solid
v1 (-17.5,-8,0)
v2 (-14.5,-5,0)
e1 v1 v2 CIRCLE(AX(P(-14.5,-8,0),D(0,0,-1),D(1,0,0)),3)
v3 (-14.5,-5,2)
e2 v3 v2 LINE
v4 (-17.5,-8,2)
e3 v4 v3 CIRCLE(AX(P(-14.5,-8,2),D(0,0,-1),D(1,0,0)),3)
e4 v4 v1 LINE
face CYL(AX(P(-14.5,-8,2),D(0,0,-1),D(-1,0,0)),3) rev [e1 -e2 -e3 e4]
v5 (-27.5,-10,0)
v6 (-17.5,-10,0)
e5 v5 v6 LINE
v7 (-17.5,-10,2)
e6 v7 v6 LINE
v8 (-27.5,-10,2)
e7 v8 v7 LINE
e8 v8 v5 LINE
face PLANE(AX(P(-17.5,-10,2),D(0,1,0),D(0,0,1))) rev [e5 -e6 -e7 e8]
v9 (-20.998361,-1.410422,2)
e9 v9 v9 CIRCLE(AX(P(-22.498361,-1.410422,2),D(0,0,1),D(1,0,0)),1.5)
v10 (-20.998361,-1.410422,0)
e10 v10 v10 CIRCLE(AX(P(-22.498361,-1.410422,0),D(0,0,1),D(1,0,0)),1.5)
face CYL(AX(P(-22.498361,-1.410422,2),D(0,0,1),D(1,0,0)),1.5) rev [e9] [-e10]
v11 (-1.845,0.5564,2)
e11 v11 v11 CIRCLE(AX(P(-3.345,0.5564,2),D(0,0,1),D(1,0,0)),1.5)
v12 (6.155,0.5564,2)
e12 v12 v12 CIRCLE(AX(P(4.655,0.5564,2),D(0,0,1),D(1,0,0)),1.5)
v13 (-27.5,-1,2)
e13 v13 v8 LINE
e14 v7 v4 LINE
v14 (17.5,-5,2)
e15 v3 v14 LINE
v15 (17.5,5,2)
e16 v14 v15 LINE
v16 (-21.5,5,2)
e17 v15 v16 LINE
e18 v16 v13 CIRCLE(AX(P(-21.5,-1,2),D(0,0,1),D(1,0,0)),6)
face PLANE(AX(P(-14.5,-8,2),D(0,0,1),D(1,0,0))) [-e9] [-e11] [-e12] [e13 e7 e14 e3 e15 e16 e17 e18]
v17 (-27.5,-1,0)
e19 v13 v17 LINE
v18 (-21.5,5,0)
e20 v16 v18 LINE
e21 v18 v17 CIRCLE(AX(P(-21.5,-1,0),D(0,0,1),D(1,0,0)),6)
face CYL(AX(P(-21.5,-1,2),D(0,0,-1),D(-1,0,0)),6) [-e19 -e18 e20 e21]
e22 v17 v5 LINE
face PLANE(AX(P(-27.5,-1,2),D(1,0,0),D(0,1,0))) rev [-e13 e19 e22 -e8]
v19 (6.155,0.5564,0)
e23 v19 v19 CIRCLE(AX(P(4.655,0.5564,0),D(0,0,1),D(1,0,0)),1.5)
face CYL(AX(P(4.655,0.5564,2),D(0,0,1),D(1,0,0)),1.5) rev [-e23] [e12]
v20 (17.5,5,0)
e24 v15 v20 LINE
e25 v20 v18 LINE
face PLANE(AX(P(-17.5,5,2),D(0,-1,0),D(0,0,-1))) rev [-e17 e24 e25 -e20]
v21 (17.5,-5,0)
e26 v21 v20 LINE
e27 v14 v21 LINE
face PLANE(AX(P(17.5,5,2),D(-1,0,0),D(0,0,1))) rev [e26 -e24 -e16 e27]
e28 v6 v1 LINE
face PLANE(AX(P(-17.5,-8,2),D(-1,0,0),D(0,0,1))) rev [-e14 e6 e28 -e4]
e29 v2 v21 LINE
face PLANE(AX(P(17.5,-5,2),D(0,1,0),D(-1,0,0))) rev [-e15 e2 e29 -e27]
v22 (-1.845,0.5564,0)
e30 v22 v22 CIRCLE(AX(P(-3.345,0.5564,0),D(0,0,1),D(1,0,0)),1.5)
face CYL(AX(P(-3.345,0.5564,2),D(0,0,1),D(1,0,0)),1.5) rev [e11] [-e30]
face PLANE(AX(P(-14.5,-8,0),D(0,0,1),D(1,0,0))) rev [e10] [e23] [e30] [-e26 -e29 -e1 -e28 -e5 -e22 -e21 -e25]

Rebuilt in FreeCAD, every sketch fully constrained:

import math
import FreeCAD as App
import Part
import Sketcher
from FreeCAD import Vector
Q = App.Units.Quantity

doc = App.newDocument("Part")
body = doc.addObject("PartDesign::Body", "Body")

sketch1 = body.newObject("Sketcher::SketchObject", "Sketch")
sketch1.AttachmentSupport = (doc.getObject("XY_Plane"), [""])
sketch1.MapMode = "FlatFace"
sketch1.addGeometry(Part.LineSegment(Vector(17.5, 5, 0), Vector(-21.5, 5, 0)), False)
sketch1.addGeometry(Part.ArcOfCircle(Part.Circle(Vector(-21.5, -1, 0), Vector(0, 0, 1), 6), math.radians(90), math.radians(180)), False)
sketch1.addGeometry(Part.LineSegment(Vector(-27.5, -1, 0), Vector(-27.5, -10, 0)), False)
sketch1.addGeometry(Part.LineSegment(Vector(-27.5, -10, 0), Vector(-17.5, -10, 0)), False)
sketch1.addGeometry(Part.LineSegment(Vector(-17.5, -10, 0), Vector(-17.5, -8, 0)), False)
sketch1.addGeometry(Part.ArcOfCircle(Part.Circle(Vector(-14.5, -8, 0), Vector(0, 0, 1), 3), math.radians(90), math.radians(180)), False)
sketch1.addGeometry(Part.LineSegment(Vector(-14.5, -5, 0), Vector(17.5, -5, 0)), False)
sketch1.addGeometry(Part.LineSegment(Vector(17.5, -5, 0), Vector(17.5, 5, 0)), False)
sketch1.addConstraint(Sketcher.Constraint("Tangent", 0, 2, 1, 1))
sketch1.addConstraint(Sketcher.Constraint("Tangent", 1, 2, 2, 1))
sketch1.addConstraint(Sketcher.Constraint("Coincident", 2, 2, 3, 1))
sketch1.addConstraint(Sketcher.Constraint("Coincident", 3, 2, 4, 1))
sketch1.addConstraint(Sketcher.Constraint("Tangent", 4, 2, 5, 2))
sketch1.addConstraint(Sketcher.Constraint("Tangent", 5, 1, 6, 1))
sketch1.addConstraint(Sketcher.Constraint("Coincident", 6, 2, 7, 1))
sketch1.addConstraint(Sketcher.Constraint("Coincident", 7, 2, 0, 1))
sketch1.addConstraint(Sketcher.Constraint("Horizontal", 0))
sketch1.addConstraint(Sketcher.Constraint("Vertical", 2))
sketch1.addConstraint(Sketcher.Constraint("Horizontal", 3))
sketch1.addConstraint(Sketcher.Constraint("Vertical", 4))
sketch1.addConstraint(Sketcher.Constraint("Horizontal", 6))
sketch1.addConstraint(Sketcher.Constraint("Vertical", 7))
sketch1.addConstraint(Sketcher.Constraint("Equal", 3, 7))
sketch1.addConstraint(Sketcher.Constraint("Radius", 1, Q("6 mm")))
sketch1.addConstraint(Sketcher.Constraint("Radius", 5, Q("3 mm")))
sketch1.addConstraint(Sketcher.Constraint("DistanceX", 0, 2, 0, 1, Q("39 mm")))
sketch1.addConstraint(Sketcher.Constraint("DistanceX", 3, 1, 3, 2, Q("10 mm")))
sketch1.addConstraint(Sketcher.Constraint("DistanceY", 2, 2, 2, 1, Q("9 mm")))
sketch1.addConstraint(Sketcher.Constraint("DistanceY", 1, 3, -1, 1, Q("1 mm")))
sketch1.addConstraint(Sketcher.Constraint("DistanceX", 1, 3, -1, 1, Q("21.5 mm")))
pad1 = body.newObject("PartDesign::Pad", "Pad")
pad1.Profile = sketch1
pad1.Length = 2

sketch2 = body.newObject("Sketcher::SketchObject", "Sketch001")
sketch2.AttachmentSupport = (doc.getObject("XY_Plane"), [""])
sketch2.MapMode = "FlatFace"
sketch2.AttachmentOffset = App.Placement(Vector(0, 0, 2), App.Rotation())
sketch2.addGeometry(Part.Circle(Vector(-22.5, -1.4, 0), Vector(0, 0, 1), 1.5), False)
sketch2.addConstraint(Sketcher.Constraint("Diameter", 0, Q("3 mm")))
sketch2.addConstraint(Sketcher.Constraint("DistanceX", 0, 3, -1, 1, Q("22.498361 mm")))
sketch2.addConstraint(Sketcher.Constraint("DistanceY", 0, 3, -1, 1, Q("1.410422 mm")))
doc.recompute()
hole = body.newObject("PartDesign::Hole", "Hole")
hole.Profile = sketch2
hole.ThreadType = "None"
hole.Diameter = 3
hole.DepthType = "ThroughAll"

sketch3 = body.newObject("Sketcher::SketchObject", "Sketch002")
sketch3.AttachmentSupport = (doc.getObject("XY_Plane"), [""])
sketch3.MapMode = "FlatFace"
sketch3.AttachmentOffset = App.Placement(Vector(0, 0, 2), App.Rotation())
sketch3.addGeometry(Part.Circle(Vector(4.7, 0.6, 0), Vector(0, 0, 1), 1.5), False)
sketch3.addGeometry(Part.Circle(Vector(-3.3, 0.6, 0), Vector(0, 0, 1), 1.5), False)
sketch3.addConstraint(Sketcher.Constraint("Equal", 0, 1))
sketch3.addConstraint(Sketcher.Constraint("Horizontal", 0, 3, 1, 3))
sketch3.addConstraint(Sketcher.Constraint("Diameter", 0, Q("3 mm")))
sketch3.addConstraint(Sketcher.Constraint("DistanceX", 1, 3, 0, 3, Q("8 mm")))
sketch3.addConstraint(Sketcher.Constraint("DistanceX", -1, 1, 0, 3, Q("4.655 mm")))
sketch3.addConstraint(Sketcher.Constraint("DistanceY", -1, 1, 0, 3, Q("0.5564 mm")))
doc.recompute()
hole2 = body.newObject("PartDesign::Hole", "Hole001")
hole2.Profile = sketch3
hole2.ThreadType = "None"
hole2.Diameter = 3
hole2.DepthType = "ThroughAll"

doc.recompute()
